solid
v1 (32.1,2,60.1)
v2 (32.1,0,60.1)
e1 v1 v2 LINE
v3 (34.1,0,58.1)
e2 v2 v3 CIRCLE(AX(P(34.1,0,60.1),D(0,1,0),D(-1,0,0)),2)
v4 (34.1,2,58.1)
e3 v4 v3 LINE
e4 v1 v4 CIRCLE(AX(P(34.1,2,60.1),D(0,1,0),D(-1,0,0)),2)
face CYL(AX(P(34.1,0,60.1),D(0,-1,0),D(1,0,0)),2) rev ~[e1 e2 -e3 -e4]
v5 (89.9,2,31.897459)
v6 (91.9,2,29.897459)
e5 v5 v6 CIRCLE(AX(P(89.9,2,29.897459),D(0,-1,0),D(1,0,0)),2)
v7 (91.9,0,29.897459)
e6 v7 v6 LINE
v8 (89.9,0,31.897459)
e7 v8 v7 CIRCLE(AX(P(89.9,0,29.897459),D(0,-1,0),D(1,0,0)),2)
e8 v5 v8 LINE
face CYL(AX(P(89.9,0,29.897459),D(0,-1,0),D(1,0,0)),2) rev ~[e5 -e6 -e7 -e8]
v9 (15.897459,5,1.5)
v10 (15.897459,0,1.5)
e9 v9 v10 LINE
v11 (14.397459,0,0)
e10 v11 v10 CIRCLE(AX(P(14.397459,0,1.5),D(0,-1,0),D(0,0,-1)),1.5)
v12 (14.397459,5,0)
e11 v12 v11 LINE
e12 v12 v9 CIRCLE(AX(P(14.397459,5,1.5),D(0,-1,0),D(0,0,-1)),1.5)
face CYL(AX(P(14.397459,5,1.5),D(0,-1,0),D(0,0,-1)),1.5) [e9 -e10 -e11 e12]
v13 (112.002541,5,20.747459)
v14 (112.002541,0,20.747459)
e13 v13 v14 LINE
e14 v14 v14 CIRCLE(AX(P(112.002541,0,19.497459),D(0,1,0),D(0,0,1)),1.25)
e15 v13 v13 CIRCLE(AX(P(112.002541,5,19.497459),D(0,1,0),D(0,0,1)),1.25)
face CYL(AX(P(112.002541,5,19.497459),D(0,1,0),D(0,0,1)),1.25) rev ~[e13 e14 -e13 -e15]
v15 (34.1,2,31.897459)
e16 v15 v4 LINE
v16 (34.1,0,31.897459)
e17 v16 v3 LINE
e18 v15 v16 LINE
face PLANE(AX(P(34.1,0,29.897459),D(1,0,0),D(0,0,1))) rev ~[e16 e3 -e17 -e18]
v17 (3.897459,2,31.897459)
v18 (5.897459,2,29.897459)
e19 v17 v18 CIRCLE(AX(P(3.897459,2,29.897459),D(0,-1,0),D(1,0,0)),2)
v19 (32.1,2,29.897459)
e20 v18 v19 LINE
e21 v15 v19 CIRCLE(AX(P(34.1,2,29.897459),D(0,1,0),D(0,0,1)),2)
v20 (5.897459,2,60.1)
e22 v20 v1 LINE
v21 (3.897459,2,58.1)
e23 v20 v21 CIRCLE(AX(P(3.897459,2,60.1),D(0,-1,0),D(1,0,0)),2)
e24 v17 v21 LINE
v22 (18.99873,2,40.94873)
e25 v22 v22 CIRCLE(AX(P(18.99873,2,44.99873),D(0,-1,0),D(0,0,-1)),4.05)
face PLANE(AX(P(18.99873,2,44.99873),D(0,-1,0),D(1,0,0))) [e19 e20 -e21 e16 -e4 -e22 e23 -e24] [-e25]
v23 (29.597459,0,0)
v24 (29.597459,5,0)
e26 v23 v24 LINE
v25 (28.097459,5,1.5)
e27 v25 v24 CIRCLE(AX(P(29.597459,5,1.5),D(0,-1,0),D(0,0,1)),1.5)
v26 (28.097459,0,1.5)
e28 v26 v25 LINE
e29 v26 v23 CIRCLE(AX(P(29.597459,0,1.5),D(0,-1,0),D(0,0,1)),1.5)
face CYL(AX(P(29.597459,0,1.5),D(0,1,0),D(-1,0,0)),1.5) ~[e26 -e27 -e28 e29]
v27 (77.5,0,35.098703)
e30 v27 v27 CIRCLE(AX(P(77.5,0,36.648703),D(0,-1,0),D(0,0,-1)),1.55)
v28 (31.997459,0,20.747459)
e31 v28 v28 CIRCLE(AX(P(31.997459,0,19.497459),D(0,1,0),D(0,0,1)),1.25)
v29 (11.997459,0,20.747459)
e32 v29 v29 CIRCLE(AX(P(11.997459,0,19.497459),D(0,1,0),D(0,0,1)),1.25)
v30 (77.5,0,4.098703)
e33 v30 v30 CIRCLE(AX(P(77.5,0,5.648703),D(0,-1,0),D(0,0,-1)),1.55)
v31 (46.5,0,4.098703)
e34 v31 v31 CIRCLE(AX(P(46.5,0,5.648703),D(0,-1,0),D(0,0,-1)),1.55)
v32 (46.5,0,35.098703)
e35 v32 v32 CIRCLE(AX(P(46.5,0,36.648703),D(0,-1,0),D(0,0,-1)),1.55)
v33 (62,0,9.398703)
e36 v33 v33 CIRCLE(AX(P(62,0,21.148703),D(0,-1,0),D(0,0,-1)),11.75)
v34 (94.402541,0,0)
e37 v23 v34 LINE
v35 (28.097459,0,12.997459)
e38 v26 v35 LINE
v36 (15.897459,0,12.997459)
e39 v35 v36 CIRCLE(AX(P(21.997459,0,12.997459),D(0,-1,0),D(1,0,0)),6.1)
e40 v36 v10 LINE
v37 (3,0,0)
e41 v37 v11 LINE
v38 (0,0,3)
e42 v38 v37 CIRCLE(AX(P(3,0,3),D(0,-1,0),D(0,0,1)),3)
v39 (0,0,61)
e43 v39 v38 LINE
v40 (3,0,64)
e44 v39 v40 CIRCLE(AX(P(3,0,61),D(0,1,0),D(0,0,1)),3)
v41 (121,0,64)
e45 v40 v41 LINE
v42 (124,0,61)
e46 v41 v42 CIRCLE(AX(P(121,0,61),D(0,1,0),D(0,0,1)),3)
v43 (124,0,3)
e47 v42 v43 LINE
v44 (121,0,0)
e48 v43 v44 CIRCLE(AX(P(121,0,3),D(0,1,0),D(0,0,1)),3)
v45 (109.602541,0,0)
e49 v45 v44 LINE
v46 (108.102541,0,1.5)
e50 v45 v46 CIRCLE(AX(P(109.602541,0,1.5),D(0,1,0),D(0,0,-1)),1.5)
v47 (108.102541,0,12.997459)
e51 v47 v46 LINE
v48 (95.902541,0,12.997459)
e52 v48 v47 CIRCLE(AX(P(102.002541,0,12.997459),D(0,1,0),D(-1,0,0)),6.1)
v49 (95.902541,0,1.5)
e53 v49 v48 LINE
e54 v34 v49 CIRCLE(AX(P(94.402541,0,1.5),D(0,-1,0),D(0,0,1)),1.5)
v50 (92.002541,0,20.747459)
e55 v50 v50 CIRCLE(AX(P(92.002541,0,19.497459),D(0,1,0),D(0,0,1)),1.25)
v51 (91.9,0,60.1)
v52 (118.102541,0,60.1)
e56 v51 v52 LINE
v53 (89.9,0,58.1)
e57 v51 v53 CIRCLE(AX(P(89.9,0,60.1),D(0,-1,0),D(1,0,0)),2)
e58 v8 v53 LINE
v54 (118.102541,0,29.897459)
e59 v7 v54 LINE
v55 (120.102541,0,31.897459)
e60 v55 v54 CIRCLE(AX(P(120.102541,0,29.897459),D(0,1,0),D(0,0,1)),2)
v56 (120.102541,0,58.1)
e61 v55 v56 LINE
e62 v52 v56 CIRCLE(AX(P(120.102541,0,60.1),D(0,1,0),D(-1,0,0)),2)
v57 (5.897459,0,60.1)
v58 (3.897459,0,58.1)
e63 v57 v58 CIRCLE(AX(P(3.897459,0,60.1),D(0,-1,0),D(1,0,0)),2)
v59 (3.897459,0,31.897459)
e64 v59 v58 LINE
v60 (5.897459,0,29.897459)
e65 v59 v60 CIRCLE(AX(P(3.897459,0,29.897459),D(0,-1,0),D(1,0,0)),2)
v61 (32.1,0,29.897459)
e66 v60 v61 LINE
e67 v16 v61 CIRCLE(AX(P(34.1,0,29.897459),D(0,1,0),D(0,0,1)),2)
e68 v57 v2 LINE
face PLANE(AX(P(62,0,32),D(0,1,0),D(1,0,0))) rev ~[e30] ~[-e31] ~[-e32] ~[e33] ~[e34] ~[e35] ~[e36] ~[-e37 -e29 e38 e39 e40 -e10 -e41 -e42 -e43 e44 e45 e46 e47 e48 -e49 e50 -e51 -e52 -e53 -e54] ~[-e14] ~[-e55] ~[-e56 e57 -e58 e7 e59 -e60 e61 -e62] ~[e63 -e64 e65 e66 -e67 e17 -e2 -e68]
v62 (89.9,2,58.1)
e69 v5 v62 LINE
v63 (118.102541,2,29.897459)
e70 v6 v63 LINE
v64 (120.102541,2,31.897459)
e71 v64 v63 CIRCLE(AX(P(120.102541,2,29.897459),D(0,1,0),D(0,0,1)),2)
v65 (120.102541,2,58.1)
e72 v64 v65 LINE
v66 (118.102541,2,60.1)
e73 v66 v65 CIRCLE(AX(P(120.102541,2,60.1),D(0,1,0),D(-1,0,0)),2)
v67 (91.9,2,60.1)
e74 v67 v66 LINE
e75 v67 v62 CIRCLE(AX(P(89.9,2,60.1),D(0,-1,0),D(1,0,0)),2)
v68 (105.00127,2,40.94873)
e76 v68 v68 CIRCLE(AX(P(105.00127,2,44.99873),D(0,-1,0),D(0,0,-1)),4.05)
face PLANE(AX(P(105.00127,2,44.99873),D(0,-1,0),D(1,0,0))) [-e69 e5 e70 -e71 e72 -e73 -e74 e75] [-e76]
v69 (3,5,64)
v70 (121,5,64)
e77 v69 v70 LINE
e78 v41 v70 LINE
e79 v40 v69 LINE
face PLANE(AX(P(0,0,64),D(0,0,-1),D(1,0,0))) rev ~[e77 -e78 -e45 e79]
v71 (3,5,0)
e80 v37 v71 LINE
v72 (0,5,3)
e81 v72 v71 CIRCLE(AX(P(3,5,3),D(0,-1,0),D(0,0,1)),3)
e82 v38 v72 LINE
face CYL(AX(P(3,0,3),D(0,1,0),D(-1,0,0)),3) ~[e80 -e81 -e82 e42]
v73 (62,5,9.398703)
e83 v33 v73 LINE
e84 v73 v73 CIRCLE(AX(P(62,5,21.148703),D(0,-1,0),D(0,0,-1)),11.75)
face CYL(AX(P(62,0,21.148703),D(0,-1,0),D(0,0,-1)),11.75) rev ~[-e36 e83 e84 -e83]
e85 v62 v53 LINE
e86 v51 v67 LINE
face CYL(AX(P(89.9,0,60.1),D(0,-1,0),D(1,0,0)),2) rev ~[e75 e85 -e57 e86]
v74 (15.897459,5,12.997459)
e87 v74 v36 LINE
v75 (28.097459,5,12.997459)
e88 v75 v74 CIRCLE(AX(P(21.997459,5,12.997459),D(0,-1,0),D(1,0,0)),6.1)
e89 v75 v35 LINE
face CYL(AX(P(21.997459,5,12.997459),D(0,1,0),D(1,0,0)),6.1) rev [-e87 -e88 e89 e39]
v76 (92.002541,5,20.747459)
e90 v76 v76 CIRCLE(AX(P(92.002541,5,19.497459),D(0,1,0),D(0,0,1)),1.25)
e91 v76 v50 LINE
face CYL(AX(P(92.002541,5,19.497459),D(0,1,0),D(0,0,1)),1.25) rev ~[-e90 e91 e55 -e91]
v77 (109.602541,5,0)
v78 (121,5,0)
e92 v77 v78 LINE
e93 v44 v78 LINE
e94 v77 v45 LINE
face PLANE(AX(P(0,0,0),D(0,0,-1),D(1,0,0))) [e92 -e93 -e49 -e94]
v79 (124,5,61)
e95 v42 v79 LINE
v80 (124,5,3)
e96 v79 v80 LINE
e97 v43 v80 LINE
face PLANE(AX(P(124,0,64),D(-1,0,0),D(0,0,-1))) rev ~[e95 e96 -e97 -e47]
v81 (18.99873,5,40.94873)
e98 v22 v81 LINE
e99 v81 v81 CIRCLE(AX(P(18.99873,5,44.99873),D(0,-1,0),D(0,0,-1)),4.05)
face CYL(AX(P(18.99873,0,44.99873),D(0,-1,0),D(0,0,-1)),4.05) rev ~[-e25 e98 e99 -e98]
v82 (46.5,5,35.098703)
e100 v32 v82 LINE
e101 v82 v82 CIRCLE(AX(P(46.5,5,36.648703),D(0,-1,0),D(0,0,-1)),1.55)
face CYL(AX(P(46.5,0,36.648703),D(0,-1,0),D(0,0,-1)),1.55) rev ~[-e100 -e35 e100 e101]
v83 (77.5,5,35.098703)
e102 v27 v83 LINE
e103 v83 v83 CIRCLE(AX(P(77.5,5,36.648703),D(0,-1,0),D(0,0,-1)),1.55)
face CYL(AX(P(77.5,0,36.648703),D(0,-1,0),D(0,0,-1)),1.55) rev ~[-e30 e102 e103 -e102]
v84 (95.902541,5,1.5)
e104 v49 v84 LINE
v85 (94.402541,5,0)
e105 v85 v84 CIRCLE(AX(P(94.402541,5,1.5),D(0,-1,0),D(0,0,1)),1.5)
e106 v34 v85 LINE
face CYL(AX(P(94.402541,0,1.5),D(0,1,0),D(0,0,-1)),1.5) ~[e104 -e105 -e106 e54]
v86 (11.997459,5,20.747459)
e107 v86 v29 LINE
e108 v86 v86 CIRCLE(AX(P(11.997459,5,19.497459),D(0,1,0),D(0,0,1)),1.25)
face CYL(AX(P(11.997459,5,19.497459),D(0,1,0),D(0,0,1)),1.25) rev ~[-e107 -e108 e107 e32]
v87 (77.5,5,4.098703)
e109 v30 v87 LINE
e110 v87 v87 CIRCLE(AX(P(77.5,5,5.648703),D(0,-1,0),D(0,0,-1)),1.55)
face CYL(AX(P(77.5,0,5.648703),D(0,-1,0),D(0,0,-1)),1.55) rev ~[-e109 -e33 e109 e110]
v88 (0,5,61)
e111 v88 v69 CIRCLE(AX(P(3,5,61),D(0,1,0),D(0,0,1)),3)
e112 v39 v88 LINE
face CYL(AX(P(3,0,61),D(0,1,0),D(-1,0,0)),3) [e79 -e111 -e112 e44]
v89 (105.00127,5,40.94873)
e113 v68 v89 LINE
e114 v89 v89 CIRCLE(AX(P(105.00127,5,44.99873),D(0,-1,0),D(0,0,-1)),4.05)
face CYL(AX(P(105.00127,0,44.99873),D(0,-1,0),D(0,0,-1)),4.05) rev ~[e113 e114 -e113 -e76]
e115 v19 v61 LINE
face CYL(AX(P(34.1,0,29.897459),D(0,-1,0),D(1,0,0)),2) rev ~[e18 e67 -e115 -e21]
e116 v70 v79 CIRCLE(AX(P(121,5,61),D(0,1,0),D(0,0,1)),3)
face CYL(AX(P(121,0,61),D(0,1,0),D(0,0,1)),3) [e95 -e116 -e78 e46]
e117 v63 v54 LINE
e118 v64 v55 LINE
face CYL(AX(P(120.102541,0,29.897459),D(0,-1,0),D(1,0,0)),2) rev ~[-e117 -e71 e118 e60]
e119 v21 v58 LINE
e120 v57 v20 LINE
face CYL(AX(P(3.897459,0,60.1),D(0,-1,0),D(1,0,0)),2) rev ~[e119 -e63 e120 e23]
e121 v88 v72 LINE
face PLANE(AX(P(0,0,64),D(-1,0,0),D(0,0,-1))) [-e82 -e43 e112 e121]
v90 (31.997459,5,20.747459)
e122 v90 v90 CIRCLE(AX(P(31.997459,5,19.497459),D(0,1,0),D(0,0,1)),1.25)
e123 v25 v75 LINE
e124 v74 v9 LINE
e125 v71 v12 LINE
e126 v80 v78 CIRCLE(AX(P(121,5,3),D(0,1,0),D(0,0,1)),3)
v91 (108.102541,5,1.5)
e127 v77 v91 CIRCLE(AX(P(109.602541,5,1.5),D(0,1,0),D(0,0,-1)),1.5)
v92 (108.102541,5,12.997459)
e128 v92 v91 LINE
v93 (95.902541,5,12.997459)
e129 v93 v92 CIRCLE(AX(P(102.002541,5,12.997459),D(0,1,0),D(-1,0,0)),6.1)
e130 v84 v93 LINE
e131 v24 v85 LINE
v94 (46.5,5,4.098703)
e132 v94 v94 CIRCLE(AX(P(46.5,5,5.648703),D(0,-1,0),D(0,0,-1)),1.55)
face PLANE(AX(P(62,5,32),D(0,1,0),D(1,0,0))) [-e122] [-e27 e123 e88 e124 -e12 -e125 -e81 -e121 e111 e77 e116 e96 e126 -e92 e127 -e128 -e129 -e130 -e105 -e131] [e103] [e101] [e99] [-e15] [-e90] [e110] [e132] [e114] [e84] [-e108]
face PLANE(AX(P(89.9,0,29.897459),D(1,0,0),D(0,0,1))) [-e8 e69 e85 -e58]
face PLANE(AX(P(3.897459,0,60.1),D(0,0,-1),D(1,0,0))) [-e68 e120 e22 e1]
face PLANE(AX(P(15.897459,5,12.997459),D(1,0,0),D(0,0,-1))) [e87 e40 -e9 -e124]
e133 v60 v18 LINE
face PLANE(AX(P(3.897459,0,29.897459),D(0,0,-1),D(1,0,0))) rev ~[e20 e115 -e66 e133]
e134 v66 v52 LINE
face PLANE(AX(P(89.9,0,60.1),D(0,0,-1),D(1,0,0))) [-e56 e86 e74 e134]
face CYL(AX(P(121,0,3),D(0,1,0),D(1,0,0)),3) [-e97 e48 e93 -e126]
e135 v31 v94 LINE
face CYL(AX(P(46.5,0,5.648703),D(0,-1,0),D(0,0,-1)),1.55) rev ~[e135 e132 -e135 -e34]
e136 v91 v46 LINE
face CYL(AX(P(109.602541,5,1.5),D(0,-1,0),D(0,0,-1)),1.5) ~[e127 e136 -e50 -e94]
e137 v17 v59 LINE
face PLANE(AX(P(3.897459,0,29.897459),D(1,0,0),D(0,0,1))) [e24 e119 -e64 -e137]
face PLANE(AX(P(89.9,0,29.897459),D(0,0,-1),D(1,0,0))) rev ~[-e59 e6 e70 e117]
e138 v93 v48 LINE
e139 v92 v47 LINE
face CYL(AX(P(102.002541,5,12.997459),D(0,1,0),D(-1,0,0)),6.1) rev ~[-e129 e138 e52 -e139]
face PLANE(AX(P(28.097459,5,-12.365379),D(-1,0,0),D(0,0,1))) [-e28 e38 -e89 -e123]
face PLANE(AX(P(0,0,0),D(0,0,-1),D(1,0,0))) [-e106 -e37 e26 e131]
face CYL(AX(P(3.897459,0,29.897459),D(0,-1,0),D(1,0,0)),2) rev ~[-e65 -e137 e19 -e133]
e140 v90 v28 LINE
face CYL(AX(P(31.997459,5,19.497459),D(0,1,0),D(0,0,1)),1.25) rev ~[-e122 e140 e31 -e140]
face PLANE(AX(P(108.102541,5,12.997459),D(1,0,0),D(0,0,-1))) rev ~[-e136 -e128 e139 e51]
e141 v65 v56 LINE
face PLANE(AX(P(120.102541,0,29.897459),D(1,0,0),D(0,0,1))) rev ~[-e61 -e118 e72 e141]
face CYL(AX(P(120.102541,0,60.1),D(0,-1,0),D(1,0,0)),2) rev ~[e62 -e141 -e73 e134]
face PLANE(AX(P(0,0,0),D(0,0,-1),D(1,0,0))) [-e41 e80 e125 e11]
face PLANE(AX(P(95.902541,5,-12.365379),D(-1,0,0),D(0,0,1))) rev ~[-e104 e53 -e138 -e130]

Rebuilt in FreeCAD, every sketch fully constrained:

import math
import FreeCAD as App
import Part
import Sketcher
from FreeCAD import Vector


def edges_at(feature, points):
    """Names of the edges that pass closest to the given points."""
    edges = feature.Shape.Edges
    near = lambda p: min(range(len(edges)), key=lambda i: edges[i].distToShape(Part.Vertex(*p))[0])
    return sorted({f"Edge{near(p) + 1}" for p in points})


def add_polygon(sketch, points):
    """Adds a closed chain of lines whose ends are joined by coincident constraints."""
    first, n = sketch.GeometryCount, len(points)
    for a, b in zip(points, points[1:] + points[:1]):
        sketch.addGeometry(Part.LineSegment(App.Vector(*a, 0), App.Vector(*b, 0)), False)
    for i in range(n):
        sketch.addConstraint(Sketcher.Constraint("Coincident", first + i, 2, first + (i + 1) % n, 1))

doc = App.newDocument("Part")
body = doc.addObject("PartDesign::Body", "Body")

# Sketch on XZ plane
sketch1 = body.newObject("Sketcher::SketchObject", "Sketch")
sketch1.AttachmentSupport = (doc.getObject("XZ_Plane"), [""])
sketch1.MapMode = "FlatFace"
add_polygon(sketch1, [(0, 0), (0, 64), (124, 64), (124, 0)])  # lines 0-3
sketch1.addConstraint([
    Sketcher.Constraint("Vertical", 0),
    Sketcher.Constraint("Horizontal", 1),
    Sketcher.Constraint("Vertical", 2),
    Sketcher.Constraint("Horizontal", 3),
    Sketcher.Constraint("Coincident", 3, 2, -1, 1),
    Sketcher.Constraint("DistanceX", 1, 1, 1, 2, 124.0),
    Sketcher.Constraint("DistanceY", 0, 1, 0, 2, 64.0),
])
pad1 = body.newObject("PartDesign::Pad", "Pad")
pad1.Profile = sketch1
pad1.Length = 5
pad1.Reversed = True

# Sketch on XZ plane
sketch2 = body.newObject("Sketcher::SketchObject", "Sketch001")
sketch2.AttachmentSupport = (doc.getObject("XZ_Plane"), [""])
sketch2.MapMode = "FlatFace"
sketch2.AttachmentOffset = App.Placement(Vector(0, 0, -5), App.Rotation())
sketch2.addGeometry([
    Part.LineSegment(Vector(16, -12, 0), Vector(16, 13, 0)),  # 0
    Part.ArcOfCircle(Part.Circle(Vector(22, 13, 0), Vector(0, 0, 1), 6), math.radians(0), math.radians(180)),  # 1
    Part.LineSegment(Vector(28, 13, 0), Vector(28, -12, 0)),  # 2
    Part.LineSegment(Vector(28, -12, 0), Vector(16, -12, 0)),  # 3
    Part.LineSegment(Vector(96, -12, 0), Vector(96, 13, 0)),  # 4
    Part.ArcOfCircle(Part.Circle(Vector(102, 13, 0), Vector(0, 0, 1), 6), math.radians(0), math.radians(180)),  # 5
    Part.LineSegment(Vector(108, 13, 0), Vector(108, -12, 0)),  # 6
    Part.LineSegment(Vector(108, -12, 0), Vector(96, -12, 0)),  # 7
], False)
sketch2.addConstraint([
    Sketcher.Constraint("Tangent", 0, 2, 1, 2),
    Sketcher.Constraint("Tangent", 1, 1, 2, 1),
    Sketcher.Constraint("Coincident", 2, 2, 3, 1),
    Sketcher.Constraint("Coincident", 3, 2, 0, 1),
    Sketcher.Constraint("Tangent", 4, 2, 5, 2),
    Sketcher.Constraint("Tangent", 5, 1, 6, 1),
    Sketcher.Constraint("Coincident", 6, 2, 7, 1),
    Sketcher.Constraint("Coincident", 7, 2, 4, 1),
    Sketcher.Constraint("Vertical", 0),
    Sketcher.Constraint("Vertical", 2),
    Sketcher.Constraint("Horizontal", 3),
    Sketcher.Constraint("Vertical", 4),
    Sketcher.Constraint("Vertical", 6),
    Sketcher.Constraint("Horizontal", 7),
    Sketcher.Constraint("Equal", 1, 5),
    Sketcher.Constraint("Horizontal", 1, 3, 5, 3),
    Sketcher.Constraint("Horizontal", 3, 2, 6, 2),
    Sketcher.Constraint("Radius", 1, 6.1),
    Sketcher.Constraint("DistanceY", 0, 1, 0, 2, 25.362838),
    Sketcher.Constraint("DistanceX", -1, 1, 1, 3, 21.997459),
    Sketcher.Constraint("DistanceY", -1, 1, 1, 3, 12.997459),
    Sketcher.Constraint("DistanceX", -1, 1, 5, 3, 102.002541),
])
pocket1 = body.newObject("PartDesign::Pocket", "Pocket")
pocket1.Profile = sketch2
pocket1.Length = 5
pocket1.Reversed = True

# Sketch on XZ plane
sketch3 = body.newObject("Sketcher::SketchObject", "Sketch002")
sketch3.AttachmentSupport = (doc.getObject("XZ_Plane"), [""])
sketch3.MapMode = "FlatFace"
add_polygon(sketch3, [(4, 60), (4, 30), (34, 30), (34, 60)])  # lines 0-3
add_polygon(sketch3, [(90, 60), (90, 30), (120, 30), (120, 60)])  # lines 4-7
sketch3.addConstraint([
    Sketcher.Constraint("Vertical", 0),
    Sketcher.Constraint("Horizontal", 1),
    Sketcher.Constraint("Vertical", 2),
    Sketcher.Constraint("Horizontal", 3),
    Sketcher.Constraint("Vertical", 4),
    Sketcher.Constraint("Horizontal", 5),
    Sketcher.Constraint("Vertical", 6),
    Sketcher.Constraint("Horizontal", 7),
    Sketcher.Constraint("Horizontal", 1, 2, 4, 2),
    Sketcher.Constraint("Horizontal", 3, 2, 6, 2),
    Sketcher.Constraint("Equal", 3, 5),
    Sketcher.Constraint("Equal", 7, 0),
    Sketcher.Constraint("DistanceX", -1, 1, 1, 2, 34.1),
    Sketcher.Constraint("DistanceY", -1, 1, 2, 2, 60.1),
    Sketcher.Constraint("DistanceX", -1, 1, 4, 2, 89.9),
    Sketcher.Constraint("DistanceX", 1, 1, 1, 2, 30.202541),
])
pocket2 = body.newObject("PartDesign::Pocket", "Pocket001")
pocket2.Profile = sketch3
pocket2.Length = 2

# Sketch on XZ plane
sketch4 = body.newObject("Sketcher::SketchObject", "Sketch003")
sketch4.AttachmentSupport = (doc.getObject("XZ_Plane"), [""])
sketch4.MapMode = "FlatFace"
sketch4.addGeometry([
    Part.Circle(Vector(34.1, 29.9, 0), Vector(0, 0, 1), 2),  # 0
    Part.Circle(Vector(34.1, 60.1, 0), Vector(0, 0, 1), 2),  # 1
    Part.Circle(Vector(3.9, 60.1, 0), Vector(0, 0, 1), 2),  # 2
    Part.Circle(Vector(3.9, 29.9, 0), Vector(0, 0, 1), 2),  # 3
    Part.Circle(Vector(120.1, 29.9, 0), Vector(0, 0, 1), 2),  # 4
    Part.Circle(Vector(120.1, 60.1, 0), Vector(0, 0, 1), 2),  # 5
    Part.Circle(Vector(89.9, 60.1, 0), Vector(0, 0, 1), 2),  # 6
    Part.Circle(Vector(89.9, 29.9, 0), Vector(0, 0, 1), 2),  # 7
], False)
sketch4.addConstraint([
    Sketcher.Constraint("Equal", 0, 1),
    Sketcher.Constraint("Equal", 1, 2),
    Sketcher.Constraint("Equal", 2, 3),
    Sketcher.Constraint("Equal", 3, 4),
    Sketcher.Constraint("Equal", 4, 5),
    Sketcher.Constraint("Equal", 5, 6),
    Sketcher.Constraint("Equal", 6, 7),
    Sketcher.Constraint("Horizontal", 1, 3, 2, 3),
    Sketcher.Constraint("Horizontal", 0, 3, 3, 3),
    Sketcher.Constraint("Horizontal", 3, 3, 4, 3),
    Sketcher.Constraint("Horizontal", 2, 3, 5, 3),
    Sketcher.Constraint("Horizontal", 5, 3, 6, 3),
    Sketcher.Constraint("Horizontal", 4, 3, 7, 3),
    Sketcher.Constraint("Vertical", 0, 3, 1, 3),
    Sketcher.Constraint("Vertical", 2, 3, 3, 3),
    Sketcher.Constraint("Vertical", 4, 3, 5, 3),
    Sketcher.Constraint("Vertical", 6, 3, 7, 3),
    Sketcher.Constraint("Diameter", 0, 4.0),
    Sketcher.Constraint("DistanceX", -1, 1, 0, 3, 34.1),
    Sketcher.Constraint("DistanceY", -1, 1, 1, 3, 60.1),
    Sketcher.Constraint("DistanceX", -1, 1, 6, 3, 89.9),
    Sketcher.Constraint("DistanceY", -1, 1, 0, 3, 29.897459),
    Sketcher.Constraint("DistanceX", -1, 1, 2, 3, 3.897459),
    Sketcher.Constraint("DistanceX", -1, 1, 4, 3, 120.102541),
])
pocket3 = body.newObject("PartDesign::Pocket", "Pocket002")
pocket3.Profile = sketch4
pocket3.Length = 2

# Sketch on XZ plane
sketch5 = body.newObject("Sketcher::SketchObject", "Sketch004")
sketch5.AttachmentSupport = (doc.getObject("XZ_Plane"), [""])
sketch5.MapMode = "FlatFace"
sketch5.addGeometry([
    Part.Circle(Vector(19, 45, 0), Vector(0, 0, 1), 4),  # 0
    Part.Circle(Vector(105, 45, 0), Vector(0, 0, 1), 4),  # 1
    Part.Circle(Vector(77.5, 36.6, 0), Vector(0, 0, 1), 1.6),  # 2
    Part.Circle(Vector(46.5, 36.6, 0), Vector(0, 0, 1), 1.6),  # 3
    Part.Circle(Vector(46.5, 5.6, 0), Vector(0, 0, 1), 1.6),  # 4
    Part.Circle(Vector(77.5, 5.6, 0), Vector(0, 0, 1), 1.6),  # 5
    Part.Circle(Vector(62, 21.1, 0), Vector(0, 0, 1), 11.8),  # 6
], False)
sketch5.addConstraint([
    Sketcher.Constraint("Equal", 0, 1),
    Sketcher.Constraint("Equal", 2, 3),
    Sketcher.Constraint("Equal", 3, 4),
    Sketcher.Constraint("Equal", 4, 5),
    Sketcher.Constraint("Horizontal", 0, 3, 1, 3),
    Sketcher.Constraint("Horizontal", 2, 3, 3, 3),
    Sketcher.Constraint("Horizontal", 4, 3, 5, 3),
    Sketcher.Constraint("Vertical", 3, 3, 4, 3),
    Sketcher.Constraint("Vertical", 2, 3, 5, 3),
    Sketcher.Constraint("Diameter", 0, 8.1),
    Sketcher.Constraint("Diameter", 2, 3.1),
    Sketcher.Constraint("Diameter", 6, 23.5),
    Sketcher.Constraint("DistanceX", -1, 1, 6, 3, 62.0),
    Sketcher.Constraint("DistanceX", 3, 3, 2, 3, 31.0),
    Sketcher.Constraint("DistanceY", 4, 3, 3, 3, 31.0),
    Sketcher.Constraint("DistanceX", -1, 1, 2, 3, 77.5),
    Sketcher.Constraint("DistanceY", 6, 3, 2, 3, 15.5),
    Sketcher.Constraint("DistanceX", -1, 1, 0, 3, 18.99873),
    Sketcher.Constraint("DistanceY", -1, 1, 0, 3, 44.99873),
    Sketcher.Constraint("DistanceX", -1, 1, 1, 3, 105.00127),
    Sketcher.Constraint("DistanceY", -1, 1, 2, 3, 36.648703),
])
pocket4 = body.newObject("PartDesign::Pocket", "Pocket003")
pocket4.Profile = sketch5
pocket4.Length = 5

# Sketch on XZ plane
sketch6 = body.newObject("Sketcher::SketchObject", "Sketch005")
sketch6.AttachmentSupport = (doc.getObject("XZ_Plane"), [""])
sketch6.MapMode = "FlatFace"
sketch6.AttachmentOffset = App.Placement(Vector(0, 0, -5), App.Rotation())
sketch6.addGeometry([
    Part.Circle(Vector(12, 19.5, 0), Vector(0, 0, 1), 1.2),
    Part.Circle(Vector(32, 19.5, 0), Vector(0, 0, 1), 1.2),
    Part.Circle(Vector(92, 19.5, 0), Vector(0, 0, 1), 1.2),
    Part.Circle(Vector(112, 19.5, 0), Vector(0, 0, 1), 1.2),
], False)
sketch6.addConstraint([
    Sketcher.Constraint("Equal", 0, 1),
    Sketcher.Constraint("Equal", 1, 2),
    Sketcher.Constraint("Equal", 2, 3),
    Sketcher.Constraint("Horizontal", 0, 3, 1, 3),
    Sketcher.Constraint("Horizontal", 1, 3, 2, 3),
    Sketcher.Constraint("Horizontal", 2, 3, 3, 3),
    Sketcher.Constraint("Diameter", 0, 2.5),
    Sketcher.Constraint("DistanceX", 0, 3, 1, 3, 20.0),
    Sketcher.Constraint("DistanceX", 2, 3, 3, 3, 20.0),
    Sketcher.Constraint("DistanceX", -1, 1, 0, 3, 11.997459),
    Sketcher.Constraint("DistanceY", -1, 1, 0, 3, 19.497459),
    Sketcher.Constraint("DistanceX", -1, 1, 2, 3, 92.002541),
])
pocket5 = body.newObject("PartDesign::Pocket", "Pocket004")
pocket5.Profile = sketch6
pocket5.Length = 10
pocket5.Reversed = True
doc.recompute()

fillet = body.newObject("PartDesign::Fillet", "Fillet")
fillet.Base = (pocket5, edges_at(pocket5, [
    (0, 2.5, 0),
    (124, 2.5, 0),
    (124, 2.5, 64),
    (0, 2.5, 64),
]))
fillet.Radius = 3
doc.recompute()

fillet2 = body.newObject("PartDesign::Fillet", "Fillet001")
fillet2.Base = (fillet, edges_at(fillet, [
    (15.897, 2.5, 0),
    (28.097, 2.5, 0),
    (95.903, 2.5, 0),
    (108.103, 2.5, 0),
]))
fillet2.Radius = 1.5

doc.recompute()
